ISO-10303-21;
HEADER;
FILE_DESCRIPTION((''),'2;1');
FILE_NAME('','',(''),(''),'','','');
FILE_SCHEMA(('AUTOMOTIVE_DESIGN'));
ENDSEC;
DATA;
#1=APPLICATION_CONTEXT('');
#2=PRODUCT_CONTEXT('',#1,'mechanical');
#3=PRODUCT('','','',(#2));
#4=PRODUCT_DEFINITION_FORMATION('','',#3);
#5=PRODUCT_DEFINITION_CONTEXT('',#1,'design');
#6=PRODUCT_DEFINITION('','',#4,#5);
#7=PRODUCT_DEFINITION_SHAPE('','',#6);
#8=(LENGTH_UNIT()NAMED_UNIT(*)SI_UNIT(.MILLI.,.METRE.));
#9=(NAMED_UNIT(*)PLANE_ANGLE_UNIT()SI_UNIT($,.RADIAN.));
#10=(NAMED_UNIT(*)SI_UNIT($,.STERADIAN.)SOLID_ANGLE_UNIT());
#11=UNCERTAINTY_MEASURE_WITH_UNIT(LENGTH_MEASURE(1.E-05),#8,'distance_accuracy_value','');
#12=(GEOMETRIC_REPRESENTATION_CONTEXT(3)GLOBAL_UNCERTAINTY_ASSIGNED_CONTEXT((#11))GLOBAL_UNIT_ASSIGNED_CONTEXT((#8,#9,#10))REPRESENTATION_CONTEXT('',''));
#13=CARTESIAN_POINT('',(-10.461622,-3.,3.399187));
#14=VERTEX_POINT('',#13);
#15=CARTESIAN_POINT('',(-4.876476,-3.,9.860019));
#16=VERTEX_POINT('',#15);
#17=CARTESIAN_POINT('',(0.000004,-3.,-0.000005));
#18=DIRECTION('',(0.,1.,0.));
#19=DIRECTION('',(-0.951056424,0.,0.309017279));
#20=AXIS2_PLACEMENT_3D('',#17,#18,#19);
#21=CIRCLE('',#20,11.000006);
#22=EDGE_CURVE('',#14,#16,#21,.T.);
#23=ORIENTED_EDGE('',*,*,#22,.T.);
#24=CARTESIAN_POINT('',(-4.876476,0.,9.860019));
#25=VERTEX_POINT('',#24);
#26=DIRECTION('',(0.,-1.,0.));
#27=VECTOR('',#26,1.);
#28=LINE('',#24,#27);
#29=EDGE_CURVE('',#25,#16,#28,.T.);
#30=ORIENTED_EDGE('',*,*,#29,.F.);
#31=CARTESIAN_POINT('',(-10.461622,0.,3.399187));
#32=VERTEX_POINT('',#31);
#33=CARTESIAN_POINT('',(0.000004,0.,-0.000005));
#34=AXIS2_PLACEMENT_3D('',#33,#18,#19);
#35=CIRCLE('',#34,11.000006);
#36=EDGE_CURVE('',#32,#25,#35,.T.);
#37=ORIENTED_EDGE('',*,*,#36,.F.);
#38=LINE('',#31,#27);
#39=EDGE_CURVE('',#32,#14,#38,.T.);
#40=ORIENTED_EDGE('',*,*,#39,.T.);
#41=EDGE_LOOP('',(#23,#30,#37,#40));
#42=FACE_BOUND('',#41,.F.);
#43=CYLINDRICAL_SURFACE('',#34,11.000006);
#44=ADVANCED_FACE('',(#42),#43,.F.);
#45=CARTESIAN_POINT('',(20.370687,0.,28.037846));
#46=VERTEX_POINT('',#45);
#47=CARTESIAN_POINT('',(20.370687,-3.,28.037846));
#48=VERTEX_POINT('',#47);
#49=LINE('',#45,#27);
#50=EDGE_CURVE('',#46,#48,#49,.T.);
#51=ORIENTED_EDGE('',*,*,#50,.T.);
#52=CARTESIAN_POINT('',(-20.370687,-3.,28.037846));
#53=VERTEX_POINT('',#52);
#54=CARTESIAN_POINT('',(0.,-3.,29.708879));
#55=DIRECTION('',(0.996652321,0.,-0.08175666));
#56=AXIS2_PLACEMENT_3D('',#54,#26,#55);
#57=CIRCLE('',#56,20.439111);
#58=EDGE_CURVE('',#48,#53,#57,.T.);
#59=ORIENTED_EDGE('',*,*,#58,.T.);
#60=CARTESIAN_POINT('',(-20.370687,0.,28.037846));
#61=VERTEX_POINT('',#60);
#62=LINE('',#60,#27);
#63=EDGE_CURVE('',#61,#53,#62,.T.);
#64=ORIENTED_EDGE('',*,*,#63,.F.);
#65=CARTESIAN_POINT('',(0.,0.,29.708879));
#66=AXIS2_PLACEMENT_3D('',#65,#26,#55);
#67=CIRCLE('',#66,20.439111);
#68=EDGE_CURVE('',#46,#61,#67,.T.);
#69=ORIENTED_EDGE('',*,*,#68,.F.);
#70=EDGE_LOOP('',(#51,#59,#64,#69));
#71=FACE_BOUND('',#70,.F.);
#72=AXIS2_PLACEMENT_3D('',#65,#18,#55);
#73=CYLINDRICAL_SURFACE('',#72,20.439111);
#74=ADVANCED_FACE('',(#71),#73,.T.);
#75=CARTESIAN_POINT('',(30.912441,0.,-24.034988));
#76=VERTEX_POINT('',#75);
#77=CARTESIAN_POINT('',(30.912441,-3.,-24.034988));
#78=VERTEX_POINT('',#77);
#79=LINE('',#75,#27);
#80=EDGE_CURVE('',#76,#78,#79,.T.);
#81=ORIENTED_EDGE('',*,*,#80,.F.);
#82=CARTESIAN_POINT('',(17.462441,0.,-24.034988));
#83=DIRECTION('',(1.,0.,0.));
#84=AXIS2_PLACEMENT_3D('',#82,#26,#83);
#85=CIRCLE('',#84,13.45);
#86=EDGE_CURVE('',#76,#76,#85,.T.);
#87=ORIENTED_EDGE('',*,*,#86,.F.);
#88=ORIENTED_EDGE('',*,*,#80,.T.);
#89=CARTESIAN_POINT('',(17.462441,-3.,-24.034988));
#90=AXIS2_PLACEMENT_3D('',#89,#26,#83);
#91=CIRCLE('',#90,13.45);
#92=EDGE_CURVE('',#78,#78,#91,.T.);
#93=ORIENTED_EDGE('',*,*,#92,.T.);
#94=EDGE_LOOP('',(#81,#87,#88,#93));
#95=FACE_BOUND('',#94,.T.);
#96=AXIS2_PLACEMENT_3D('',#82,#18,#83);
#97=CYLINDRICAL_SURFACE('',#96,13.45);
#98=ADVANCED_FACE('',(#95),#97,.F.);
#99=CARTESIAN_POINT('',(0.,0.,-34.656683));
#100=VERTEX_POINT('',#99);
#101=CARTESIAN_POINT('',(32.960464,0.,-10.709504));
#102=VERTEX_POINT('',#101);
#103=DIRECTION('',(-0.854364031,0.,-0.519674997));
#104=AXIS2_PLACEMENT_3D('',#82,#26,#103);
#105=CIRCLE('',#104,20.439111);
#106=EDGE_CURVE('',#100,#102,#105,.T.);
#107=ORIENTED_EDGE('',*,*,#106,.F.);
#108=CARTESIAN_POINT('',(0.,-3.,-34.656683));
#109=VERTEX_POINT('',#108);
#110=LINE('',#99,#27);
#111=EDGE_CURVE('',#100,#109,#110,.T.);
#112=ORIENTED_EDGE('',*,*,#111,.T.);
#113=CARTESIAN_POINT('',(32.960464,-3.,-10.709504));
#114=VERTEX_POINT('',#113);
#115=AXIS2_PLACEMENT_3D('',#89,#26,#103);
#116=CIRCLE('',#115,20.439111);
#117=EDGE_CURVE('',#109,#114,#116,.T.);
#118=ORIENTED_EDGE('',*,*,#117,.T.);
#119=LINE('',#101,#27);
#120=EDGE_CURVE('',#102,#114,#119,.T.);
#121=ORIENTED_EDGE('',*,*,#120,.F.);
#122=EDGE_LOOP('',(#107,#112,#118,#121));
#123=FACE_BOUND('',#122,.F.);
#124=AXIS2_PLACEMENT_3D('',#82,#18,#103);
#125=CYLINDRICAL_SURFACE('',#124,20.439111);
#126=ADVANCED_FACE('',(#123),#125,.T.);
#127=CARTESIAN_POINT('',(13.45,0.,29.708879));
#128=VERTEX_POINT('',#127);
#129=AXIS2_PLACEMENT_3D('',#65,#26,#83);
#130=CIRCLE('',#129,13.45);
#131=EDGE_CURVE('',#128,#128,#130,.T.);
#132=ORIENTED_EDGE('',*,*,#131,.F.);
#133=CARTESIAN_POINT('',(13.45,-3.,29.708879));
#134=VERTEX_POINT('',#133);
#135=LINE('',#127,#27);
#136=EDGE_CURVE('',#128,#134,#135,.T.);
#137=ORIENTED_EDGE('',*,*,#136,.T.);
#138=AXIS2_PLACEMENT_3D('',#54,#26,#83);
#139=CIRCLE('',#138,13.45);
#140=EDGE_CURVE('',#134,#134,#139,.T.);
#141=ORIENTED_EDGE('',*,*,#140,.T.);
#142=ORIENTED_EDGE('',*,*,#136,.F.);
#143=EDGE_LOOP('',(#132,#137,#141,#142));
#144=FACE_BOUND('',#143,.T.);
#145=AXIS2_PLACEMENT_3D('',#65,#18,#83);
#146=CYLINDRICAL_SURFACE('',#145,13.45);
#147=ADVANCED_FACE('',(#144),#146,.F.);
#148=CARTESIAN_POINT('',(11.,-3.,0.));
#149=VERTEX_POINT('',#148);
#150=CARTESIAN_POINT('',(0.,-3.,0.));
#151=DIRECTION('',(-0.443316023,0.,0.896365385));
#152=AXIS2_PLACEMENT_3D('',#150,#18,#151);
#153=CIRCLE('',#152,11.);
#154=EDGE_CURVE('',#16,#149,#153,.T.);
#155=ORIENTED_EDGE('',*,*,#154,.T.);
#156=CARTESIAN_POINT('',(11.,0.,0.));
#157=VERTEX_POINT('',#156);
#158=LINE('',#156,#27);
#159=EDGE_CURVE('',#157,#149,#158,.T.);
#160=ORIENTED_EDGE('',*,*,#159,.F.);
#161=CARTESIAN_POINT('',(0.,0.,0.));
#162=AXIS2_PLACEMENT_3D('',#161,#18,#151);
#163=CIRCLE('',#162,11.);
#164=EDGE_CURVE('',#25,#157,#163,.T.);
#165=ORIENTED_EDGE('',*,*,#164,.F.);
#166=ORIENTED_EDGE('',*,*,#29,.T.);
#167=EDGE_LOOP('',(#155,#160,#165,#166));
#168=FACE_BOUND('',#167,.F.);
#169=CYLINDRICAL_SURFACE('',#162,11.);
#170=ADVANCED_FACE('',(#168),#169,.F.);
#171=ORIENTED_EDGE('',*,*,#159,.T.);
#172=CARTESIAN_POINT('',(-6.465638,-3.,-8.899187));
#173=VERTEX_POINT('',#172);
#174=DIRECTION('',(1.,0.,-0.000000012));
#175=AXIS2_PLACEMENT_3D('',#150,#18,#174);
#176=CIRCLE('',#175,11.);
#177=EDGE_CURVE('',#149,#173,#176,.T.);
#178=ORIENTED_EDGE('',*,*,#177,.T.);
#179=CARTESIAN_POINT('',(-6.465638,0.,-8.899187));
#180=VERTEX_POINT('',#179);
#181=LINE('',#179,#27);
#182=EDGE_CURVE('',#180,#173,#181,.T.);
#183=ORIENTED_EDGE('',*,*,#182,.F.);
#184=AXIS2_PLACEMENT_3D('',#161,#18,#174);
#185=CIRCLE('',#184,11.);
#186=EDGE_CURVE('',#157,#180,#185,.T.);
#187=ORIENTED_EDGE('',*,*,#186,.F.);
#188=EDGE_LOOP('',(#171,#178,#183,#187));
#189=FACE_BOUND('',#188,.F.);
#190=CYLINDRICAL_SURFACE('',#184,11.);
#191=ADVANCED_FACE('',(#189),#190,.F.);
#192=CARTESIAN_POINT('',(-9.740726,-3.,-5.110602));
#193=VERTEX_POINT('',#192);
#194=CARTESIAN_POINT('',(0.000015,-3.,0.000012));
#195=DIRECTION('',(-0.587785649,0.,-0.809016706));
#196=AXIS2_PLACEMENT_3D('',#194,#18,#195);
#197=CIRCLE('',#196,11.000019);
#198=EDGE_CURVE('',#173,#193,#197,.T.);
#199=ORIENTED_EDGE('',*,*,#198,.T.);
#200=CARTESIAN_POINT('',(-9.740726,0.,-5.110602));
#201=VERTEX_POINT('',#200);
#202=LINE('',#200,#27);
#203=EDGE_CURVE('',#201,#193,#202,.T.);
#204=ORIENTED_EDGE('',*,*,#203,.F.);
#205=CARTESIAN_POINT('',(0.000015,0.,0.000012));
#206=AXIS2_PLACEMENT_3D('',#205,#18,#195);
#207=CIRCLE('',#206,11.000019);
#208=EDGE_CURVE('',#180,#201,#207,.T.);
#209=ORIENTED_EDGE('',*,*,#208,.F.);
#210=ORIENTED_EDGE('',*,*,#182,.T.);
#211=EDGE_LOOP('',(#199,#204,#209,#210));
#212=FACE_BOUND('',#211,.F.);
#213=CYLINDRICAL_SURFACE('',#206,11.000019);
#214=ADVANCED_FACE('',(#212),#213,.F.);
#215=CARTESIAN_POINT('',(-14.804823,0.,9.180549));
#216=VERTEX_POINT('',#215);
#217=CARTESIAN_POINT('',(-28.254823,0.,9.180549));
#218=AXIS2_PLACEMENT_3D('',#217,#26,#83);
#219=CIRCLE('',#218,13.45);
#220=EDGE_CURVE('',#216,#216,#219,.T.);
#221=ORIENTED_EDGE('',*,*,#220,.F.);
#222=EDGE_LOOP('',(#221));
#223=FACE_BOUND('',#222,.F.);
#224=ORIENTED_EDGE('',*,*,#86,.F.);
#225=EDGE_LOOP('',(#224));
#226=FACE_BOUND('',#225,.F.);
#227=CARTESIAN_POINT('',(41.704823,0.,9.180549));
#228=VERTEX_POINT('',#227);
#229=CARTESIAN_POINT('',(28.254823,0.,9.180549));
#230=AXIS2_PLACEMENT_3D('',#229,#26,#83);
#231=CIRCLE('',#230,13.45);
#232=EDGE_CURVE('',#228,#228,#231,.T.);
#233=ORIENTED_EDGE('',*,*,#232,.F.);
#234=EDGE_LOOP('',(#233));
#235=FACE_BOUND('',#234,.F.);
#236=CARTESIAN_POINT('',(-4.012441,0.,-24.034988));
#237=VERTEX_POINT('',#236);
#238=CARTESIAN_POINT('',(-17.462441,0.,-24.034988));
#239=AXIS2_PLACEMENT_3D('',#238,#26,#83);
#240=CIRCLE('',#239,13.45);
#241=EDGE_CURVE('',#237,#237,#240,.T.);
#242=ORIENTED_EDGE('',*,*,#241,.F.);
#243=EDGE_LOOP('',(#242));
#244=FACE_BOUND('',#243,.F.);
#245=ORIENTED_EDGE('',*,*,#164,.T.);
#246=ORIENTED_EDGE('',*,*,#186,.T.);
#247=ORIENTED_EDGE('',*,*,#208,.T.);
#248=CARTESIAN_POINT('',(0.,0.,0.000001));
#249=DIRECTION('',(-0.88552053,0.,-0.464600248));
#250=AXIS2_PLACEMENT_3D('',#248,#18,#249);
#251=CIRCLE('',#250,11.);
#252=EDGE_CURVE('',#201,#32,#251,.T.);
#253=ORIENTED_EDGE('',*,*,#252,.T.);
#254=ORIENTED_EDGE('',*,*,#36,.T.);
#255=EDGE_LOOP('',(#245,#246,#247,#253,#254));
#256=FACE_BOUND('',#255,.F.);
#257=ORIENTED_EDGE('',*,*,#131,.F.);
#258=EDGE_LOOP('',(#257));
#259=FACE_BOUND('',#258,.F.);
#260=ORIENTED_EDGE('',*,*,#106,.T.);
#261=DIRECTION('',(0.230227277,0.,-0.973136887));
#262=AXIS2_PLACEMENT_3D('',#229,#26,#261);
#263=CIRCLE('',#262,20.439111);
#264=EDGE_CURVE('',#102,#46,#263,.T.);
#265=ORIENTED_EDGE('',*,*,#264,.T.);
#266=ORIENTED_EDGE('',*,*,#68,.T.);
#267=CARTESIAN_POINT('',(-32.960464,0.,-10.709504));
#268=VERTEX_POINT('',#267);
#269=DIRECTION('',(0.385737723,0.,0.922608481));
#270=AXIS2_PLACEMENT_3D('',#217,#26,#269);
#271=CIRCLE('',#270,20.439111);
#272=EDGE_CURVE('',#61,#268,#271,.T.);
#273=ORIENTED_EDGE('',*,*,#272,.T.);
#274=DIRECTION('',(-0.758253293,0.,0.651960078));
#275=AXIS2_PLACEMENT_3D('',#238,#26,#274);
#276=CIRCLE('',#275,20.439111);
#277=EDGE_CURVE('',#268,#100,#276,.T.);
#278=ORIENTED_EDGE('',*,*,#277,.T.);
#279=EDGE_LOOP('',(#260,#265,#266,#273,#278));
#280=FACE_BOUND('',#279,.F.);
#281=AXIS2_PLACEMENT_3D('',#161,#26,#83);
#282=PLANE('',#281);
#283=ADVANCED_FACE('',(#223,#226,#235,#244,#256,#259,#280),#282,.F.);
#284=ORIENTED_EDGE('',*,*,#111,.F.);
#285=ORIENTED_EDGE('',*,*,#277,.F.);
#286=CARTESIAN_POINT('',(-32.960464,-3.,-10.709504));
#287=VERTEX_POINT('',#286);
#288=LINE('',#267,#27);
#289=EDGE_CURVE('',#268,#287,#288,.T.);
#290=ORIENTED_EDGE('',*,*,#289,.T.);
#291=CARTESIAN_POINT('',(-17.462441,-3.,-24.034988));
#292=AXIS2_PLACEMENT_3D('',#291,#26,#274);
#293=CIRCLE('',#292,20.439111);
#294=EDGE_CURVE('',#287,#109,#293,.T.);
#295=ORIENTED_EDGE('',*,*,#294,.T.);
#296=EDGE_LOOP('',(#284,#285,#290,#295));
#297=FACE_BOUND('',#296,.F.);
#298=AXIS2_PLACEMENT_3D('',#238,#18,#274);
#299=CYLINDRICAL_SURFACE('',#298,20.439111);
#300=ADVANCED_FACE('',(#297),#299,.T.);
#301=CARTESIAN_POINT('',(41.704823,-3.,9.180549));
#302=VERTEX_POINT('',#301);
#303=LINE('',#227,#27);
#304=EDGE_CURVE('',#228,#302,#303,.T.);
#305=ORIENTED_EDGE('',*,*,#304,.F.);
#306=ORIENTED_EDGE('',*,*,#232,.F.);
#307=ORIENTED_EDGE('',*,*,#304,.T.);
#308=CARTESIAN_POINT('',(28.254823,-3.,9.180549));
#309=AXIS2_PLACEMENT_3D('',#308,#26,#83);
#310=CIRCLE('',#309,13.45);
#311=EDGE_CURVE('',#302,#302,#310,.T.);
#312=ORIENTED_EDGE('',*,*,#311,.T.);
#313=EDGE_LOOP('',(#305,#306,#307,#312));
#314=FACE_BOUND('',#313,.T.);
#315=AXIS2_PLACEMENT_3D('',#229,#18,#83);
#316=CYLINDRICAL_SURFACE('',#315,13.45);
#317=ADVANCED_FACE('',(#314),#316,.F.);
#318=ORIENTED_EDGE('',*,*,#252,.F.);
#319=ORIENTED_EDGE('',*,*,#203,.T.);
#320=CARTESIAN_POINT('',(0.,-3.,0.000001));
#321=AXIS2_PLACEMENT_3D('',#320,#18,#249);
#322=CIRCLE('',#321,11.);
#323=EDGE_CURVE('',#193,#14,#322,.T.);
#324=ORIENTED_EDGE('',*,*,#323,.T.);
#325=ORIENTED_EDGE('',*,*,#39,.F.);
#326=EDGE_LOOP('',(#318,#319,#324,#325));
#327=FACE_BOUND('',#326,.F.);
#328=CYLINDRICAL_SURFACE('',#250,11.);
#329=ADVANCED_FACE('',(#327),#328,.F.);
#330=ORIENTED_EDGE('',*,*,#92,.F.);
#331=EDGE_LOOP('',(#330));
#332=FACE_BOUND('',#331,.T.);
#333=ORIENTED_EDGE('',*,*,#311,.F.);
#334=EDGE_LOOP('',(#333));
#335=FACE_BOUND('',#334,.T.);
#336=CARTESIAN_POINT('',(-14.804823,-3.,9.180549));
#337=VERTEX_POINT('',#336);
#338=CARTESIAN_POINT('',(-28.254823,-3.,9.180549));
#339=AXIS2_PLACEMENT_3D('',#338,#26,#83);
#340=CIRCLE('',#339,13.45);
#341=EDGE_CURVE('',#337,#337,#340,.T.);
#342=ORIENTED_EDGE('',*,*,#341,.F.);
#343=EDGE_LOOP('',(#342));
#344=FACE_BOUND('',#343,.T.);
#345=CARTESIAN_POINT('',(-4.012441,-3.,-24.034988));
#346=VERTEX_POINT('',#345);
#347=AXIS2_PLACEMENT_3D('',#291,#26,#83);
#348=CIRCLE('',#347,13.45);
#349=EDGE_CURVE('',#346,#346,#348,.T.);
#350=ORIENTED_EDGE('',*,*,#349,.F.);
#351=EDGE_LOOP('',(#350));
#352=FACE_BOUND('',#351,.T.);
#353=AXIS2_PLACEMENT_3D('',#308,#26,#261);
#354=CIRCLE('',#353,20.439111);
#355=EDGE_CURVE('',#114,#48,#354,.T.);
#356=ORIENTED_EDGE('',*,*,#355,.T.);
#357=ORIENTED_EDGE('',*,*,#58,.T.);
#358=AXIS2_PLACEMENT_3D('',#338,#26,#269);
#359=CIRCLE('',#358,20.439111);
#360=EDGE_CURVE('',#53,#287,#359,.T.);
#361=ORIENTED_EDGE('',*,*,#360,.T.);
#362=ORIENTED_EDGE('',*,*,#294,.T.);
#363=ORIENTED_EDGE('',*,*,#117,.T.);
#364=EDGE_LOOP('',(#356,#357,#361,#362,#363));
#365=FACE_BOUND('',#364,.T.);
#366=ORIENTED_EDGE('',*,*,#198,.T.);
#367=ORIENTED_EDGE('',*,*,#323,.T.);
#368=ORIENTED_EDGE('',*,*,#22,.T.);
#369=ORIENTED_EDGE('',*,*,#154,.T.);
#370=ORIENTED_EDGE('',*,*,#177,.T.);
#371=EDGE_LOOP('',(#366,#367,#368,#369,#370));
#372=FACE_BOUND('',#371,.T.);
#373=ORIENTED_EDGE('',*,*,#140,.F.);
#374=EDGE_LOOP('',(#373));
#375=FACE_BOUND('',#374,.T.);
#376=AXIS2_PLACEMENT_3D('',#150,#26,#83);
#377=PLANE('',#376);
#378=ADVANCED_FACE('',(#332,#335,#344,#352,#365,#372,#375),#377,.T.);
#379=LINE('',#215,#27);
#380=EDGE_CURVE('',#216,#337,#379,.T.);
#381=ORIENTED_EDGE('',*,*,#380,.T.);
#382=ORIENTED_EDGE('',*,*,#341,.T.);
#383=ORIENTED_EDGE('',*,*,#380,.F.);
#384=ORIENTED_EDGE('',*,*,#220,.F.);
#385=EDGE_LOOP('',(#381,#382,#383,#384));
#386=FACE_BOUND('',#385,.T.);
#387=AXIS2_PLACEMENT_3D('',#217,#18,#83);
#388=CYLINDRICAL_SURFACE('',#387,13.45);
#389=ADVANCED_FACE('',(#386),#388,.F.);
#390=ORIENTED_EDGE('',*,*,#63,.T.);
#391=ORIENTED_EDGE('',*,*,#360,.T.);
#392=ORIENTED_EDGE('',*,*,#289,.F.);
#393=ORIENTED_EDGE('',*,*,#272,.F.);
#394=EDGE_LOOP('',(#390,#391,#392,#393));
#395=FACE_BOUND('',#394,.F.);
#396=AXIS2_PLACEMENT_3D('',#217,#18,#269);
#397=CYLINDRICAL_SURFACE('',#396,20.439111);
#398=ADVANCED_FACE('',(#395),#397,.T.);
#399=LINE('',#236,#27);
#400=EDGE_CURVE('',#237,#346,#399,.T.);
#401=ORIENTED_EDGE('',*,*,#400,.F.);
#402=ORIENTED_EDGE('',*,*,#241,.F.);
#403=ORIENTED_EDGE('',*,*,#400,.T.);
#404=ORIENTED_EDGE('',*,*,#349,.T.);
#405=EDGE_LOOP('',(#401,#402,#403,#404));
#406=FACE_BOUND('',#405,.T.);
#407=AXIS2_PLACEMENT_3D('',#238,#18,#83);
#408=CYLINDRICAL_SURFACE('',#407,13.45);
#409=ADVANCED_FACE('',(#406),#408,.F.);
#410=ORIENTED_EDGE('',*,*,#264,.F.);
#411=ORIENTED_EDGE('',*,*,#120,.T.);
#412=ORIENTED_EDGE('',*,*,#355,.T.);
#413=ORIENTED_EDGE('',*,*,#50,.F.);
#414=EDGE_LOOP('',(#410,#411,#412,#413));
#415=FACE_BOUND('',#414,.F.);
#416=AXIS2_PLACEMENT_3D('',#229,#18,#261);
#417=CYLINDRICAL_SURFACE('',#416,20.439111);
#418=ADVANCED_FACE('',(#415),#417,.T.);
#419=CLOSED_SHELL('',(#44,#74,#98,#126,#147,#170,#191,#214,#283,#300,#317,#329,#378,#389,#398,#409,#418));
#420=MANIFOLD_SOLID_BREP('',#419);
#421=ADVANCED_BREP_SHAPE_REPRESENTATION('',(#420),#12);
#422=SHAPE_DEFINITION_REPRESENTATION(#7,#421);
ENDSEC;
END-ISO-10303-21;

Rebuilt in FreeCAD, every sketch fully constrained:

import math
import FreeCAD as App
import Part
import Sketcher
Q = App.Units.Quantity

doc = App.newDocument("Part")
body = doc.addObject("PartDesign::Body", "Body")

# Sketch on XZ plane
sketch1 = body.newObject("Sketcher::SketchObject", "Sketch")
sketch1.AttachmentSupport = (doc.getObject("XZ_Plane"), [""])
sketch1.MapMode = "FlatFace"
sketch1.addGeometry([
    Part.ArcOfCircle(Part.Circle(App.Vector(28.254823, 9.180549, 0), App.Vector(0, 0, 1), 20.439111), math.radians(-76.689547), math.radians(112.689547)),  # 0
    Part.ArcOfCircle(Part.Circle(App.Vector(0, 29.708879, 0), App.Vector(0, 0, 1), 20.439111), math.radians(-4.689546), math.radians(184.689546)),  # 1
    Part.ArcOfCircle(Part.Circle(App.Vector(-28.254823, 9.180549, 0), App.Vector(0, 0, 1), 20.439111), math.radians(67.310453), math.radians(256.689547)),  # 2
    Part.ArcOfCircle(Part.Circle(App.Vector(-17.462441, -24.034988, 0), App.Vector(0, 0, 1), 20.439111), math.radians(139.310453), math.radians(328.689547)),  # 3
    Part.ArcOfCircle(Part.Circle(App.Vector(17.462441, -24.034988, 0), App.Vector(0, 0, 1), 20.439111), math.radians(-148.689547), math.radians(40.689547)),  # 4
    Part.Circle(App.Vector(-17.462441, -24.034988, 0), App.Vector(0, 0, 1), 13.45),  # 5
    Part.ArcOfCircle(Part.Circle(App.Vector(0.000004, -0.000005, 0), App.Vector(0, 0, 1), 11.000006), math.radians(116.315657), math.radians(161.999983)),  # 6
    Part.ArcOfCircle(Part.Circle(App.Vector(0, 0, 0), App.Vector(0, 0, 1), 11), math.radians(0), math.radians(116.315649)),  # 7
    Part.ArcOfCircle(Part.Circle(App.Vector(0, 0, 0), App.Vector(0, 0, 1), 11), math.radians(-126), math.radians(-0.000001)),  # 8
    Part.ArcOfCircle(Part.Circle(App.Vector(0.000015, 0.000012, 0), App.Vector(0, 0, 1), 11.000019), math.radians(-152.315631), math.radians(-126.000028)),  # 9
    Part.ArcOfCircle(Part.Circle(App.Vector(0, 0.000001, 0), App.Vector(0, 0, 1), 11), math.radians(162.000003), math.radians(207.684354)),  # 10
    Part.Circle(App.Vector(17.462441, -24.034988, 0), App.Vector(0, 0, 1), 13.45),  # 11
    Part.Circle(App.Vector(-28.254823, 9.180549, 0), App.Vector(0, 0, 1), 13.45),  # 12
    Part.Circle(App.Vector(28.254823, 9.180549, 0), App.Vector(0, 0, 1), 13.45),  # 13
    Part.Circle(App.Vector(0, 29.708879, 0), App.Vector(0, 0, 1), 13.45),  # 14
], False)
sketch1.addConstraint([
    Sketcher.Constraint("Coincident", 0, 2, 1, 1),
    Sketcher.Constraint("Coincident", 1, 2, 2, 1),
    Sketcher.Constraint("Coincident", 2, 2, 3, 1),
    Sketcher.Constraint("Coincident", 3, 2, 4, 1),
    Sketcher.Constraint("Coincident", 4, 2, 0, 1),
    Sketcher.Constraint("Coincident", 6, 1, 7, 2),
    Sketcher.Constraint("Coincident", 7, 1, 8, 2),
    Sketcher.Constraint("Coincident", 8, 1, 9, 2),
    Sketcher.Constraint("Coincident", 9, 1, 10, 2),
    Sketcher.Constraint("Coincident", 10, 1, 6, 2),
    Sketcher.Constraint("Coincident", 6, 3, -1, 1),
    Sketcher.Constraint("Coincident", 7, 3, -1, 1),
    Sketcher.Constraint("Coincident", 8, 3, -1, 1),
    Sketcher.Constraint("Coincident", 10, 3, -1, 1),
    Sketcher.Constraint("Coincident", 5, 3, 3, 3),
    Sketcher.Constraint("Coincident", 11, 3, 4, 3),
    Sketcher.Constraint("Coincident", 12, 3, 2, 3),
    Sketcher.Constraint("Coincident", 13, 3, 0, 3),
    Sketcher.Constraint("Coincident", 14, 3, 1, 3),
    Sketcher.Constraint("PointOnObject", 1, 3, -2),
    Sketcher.Constraint("PointOnObject", 3, 2, -2),
    Sketcher.Constraint("PointOnObject", 7, 1, -1),
    Sketcher.Constraint("Radius", 7, Q("11 mm")),
    Sketcher.Constraint("Diameter", 5, Q("26.9 mm")),
    Sketcher.Constraint("Diameter", 11, Q("26.9 mm")),
    Sketcher.Constraint("Diameter", 12, Q("26.9 mm")),
    Sketcher.Constraint("Diameter", 13, Q("26.9 mm")),
    Sketcher.Constraint("Diameter", 14, Q("26.9 mm")),
    Sketcher.Constraint("Radius", 0, Q("20.439111 mm")),
    Sketcher.Constraint("Radius", 1, Q("20.439111 mm")),
    Sketcher.Constraint("Radius", 2, Q("20.439111 mm")),
    Sketcher.Constraint("Radius", 3, Q("20.439111 mm")),
    Sketcher.Constraint("Radius", 4, Q("20.439111 mm")),
    Sketcher.Constraint("Radius", 9, Q("11.000019 mm")),
    Sketcher.Constraint("DistanceY", 8, 1, 9, 3, Q("8.899199 mm")),
    Sketcher.Constraint("DistanceY", 9, 1, 7, 3, Q("5.110602 mm")),
    Sketcher.Constraint("DistanceY", -1, 1, 0, 3, Q("9.180549 mm")),
    Sketcher.Constraint("DistanceY", -1, 1, 1, 3, Q("29.708879 mm")),
    Sketcher.Constraint("DistanceY", -1, 1, 2, 3, Q("9.180549 mm")),
    Sketcher.Constraint("DistanceX", 3, 3, -1, 1, Q("17.462441 mm")),
    Sketcher.Constraint("DistanceY", 3, 3, -1, 1, Q("24.034988 mm")),
    Sketcher.Constraint("DistanceX", -1, 1, 4, 3, Q("17.462441 mm")),
    Sketcher.Constraint("DistanceY", -1, 1, 6, 1, Q("9.860019 mm")),
    Sketcher.Constraint("DistanceX", 6, 3, 0, 3, Q("28.254819 mm")),
    Sketcher.Constraint("DistanceX", 2, 2, 2, 3, Q("4.705641 mm")),
    Sketcher.Constraint("DistanceY", 9, 1, 10, 1, Q("8.509789 mm")),
])
pad1 = body.newObject("PartDesign::Pad", "Pad")
pad1.Profile = sketch1
pad1.Length = 3

doc.recompute()
